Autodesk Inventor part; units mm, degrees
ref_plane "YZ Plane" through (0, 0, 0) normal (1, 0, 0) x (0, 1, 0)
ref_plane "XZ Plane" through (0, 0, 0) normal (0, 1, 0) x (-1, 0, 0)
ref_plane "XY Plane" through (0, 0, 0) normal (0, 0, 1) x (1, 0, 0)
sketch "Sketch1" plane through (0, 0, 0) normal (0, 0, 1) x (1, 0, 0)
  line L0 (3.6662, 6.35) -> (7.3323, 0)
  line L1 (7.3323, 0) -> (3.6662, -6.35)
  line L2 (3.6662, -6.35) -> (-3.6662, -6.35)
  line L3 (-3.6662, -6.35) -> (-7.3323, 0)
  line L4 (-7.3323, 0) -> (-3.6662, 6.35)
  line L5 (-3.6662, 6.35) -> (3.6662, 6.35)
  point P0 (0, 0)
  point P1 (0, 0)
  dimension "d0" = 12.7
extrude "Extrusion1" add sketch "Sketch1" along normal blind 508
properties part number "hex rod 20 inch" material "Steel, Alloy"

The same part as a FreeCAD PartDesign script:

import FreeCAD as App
import Part
import Sketcher
Q = App.Units.Quantity


def add_polygon(sketch, points):
    """Adds a closed chain of lines whose ends are joined by coincident constraints."""
    first, n = sketch.GeometryCount, len(points)
    for a, b in zip(points, points[1:] + points[:1]):
        sketch.addGeometry(Part.LineSegment(App.Vector(*a, 0), App.Vector(*b, 0)), False)
    for i in range(n):
        sketch.addConstraint(Sketcher.Constraint("Coincident", first + i, 2, first + (i + 1) % n, 1))

doc = App.newDocument("Part")
body = doc.addObject("PartDesign::Body", "Body")

# Sketch on XY plane
sketch1 = body.newObject("Sketcher::SketchObject", "Sketch")
sketch1.AttachmentSupport = (doc.getObject("XY_Plane"), [""])
sketch1.MapMode = "FlatFace"
add_polygon(sketch1, [(7.3323, 0), (3.6662, 6.35), (-3.6662, 6.35), (-7.3323, 0), (-3.6662, -6.35), (3.6662, -6.35)])  # lines 0-5
sketch1.addConstraint(Sketcher.Constraint("Horizontal", 1))
sketch1.addConstraint(Sketcher.Constraint("Horizontal", 4))
sketch1.addConstraint(Sketcher.Constraint("Symmetric", 0, 2, 3, 2, -1, 1))
sketch1.addConstraint(Sketcher.Constraint("Symmetric", 2, 2, 5, 2, -1, 1))
sketch1.addConstraint(Sketcher.Constraint("PointOnObject", 2, 2, -1))
sketch1.addConstraint(Sketcher.Constraint("Parallel", 2, 5))
sketch1.addConstraint(Sketcher.Constraint("Vertical", 1, 2, 3, 2))
sketch1.addConstraint(Sketcher.Constraint("DistanceY", 3, 2, 1, 2, Q("0.5 in")))
sketch1.addConstraint(Sketcher.Constraint("Angle", 0, Q("119.9995 deg")))
sketch1.addConstraint(Sketcher.Constraint("DistanceX", 2, 2, 0, 2, Q("0.433 in")))
pad1 = body.newObject("PartDesign::Pad", "Pad")
pad1.Profile = sketch1
pad1.Length = Q("20 in")

doc.recompute()
